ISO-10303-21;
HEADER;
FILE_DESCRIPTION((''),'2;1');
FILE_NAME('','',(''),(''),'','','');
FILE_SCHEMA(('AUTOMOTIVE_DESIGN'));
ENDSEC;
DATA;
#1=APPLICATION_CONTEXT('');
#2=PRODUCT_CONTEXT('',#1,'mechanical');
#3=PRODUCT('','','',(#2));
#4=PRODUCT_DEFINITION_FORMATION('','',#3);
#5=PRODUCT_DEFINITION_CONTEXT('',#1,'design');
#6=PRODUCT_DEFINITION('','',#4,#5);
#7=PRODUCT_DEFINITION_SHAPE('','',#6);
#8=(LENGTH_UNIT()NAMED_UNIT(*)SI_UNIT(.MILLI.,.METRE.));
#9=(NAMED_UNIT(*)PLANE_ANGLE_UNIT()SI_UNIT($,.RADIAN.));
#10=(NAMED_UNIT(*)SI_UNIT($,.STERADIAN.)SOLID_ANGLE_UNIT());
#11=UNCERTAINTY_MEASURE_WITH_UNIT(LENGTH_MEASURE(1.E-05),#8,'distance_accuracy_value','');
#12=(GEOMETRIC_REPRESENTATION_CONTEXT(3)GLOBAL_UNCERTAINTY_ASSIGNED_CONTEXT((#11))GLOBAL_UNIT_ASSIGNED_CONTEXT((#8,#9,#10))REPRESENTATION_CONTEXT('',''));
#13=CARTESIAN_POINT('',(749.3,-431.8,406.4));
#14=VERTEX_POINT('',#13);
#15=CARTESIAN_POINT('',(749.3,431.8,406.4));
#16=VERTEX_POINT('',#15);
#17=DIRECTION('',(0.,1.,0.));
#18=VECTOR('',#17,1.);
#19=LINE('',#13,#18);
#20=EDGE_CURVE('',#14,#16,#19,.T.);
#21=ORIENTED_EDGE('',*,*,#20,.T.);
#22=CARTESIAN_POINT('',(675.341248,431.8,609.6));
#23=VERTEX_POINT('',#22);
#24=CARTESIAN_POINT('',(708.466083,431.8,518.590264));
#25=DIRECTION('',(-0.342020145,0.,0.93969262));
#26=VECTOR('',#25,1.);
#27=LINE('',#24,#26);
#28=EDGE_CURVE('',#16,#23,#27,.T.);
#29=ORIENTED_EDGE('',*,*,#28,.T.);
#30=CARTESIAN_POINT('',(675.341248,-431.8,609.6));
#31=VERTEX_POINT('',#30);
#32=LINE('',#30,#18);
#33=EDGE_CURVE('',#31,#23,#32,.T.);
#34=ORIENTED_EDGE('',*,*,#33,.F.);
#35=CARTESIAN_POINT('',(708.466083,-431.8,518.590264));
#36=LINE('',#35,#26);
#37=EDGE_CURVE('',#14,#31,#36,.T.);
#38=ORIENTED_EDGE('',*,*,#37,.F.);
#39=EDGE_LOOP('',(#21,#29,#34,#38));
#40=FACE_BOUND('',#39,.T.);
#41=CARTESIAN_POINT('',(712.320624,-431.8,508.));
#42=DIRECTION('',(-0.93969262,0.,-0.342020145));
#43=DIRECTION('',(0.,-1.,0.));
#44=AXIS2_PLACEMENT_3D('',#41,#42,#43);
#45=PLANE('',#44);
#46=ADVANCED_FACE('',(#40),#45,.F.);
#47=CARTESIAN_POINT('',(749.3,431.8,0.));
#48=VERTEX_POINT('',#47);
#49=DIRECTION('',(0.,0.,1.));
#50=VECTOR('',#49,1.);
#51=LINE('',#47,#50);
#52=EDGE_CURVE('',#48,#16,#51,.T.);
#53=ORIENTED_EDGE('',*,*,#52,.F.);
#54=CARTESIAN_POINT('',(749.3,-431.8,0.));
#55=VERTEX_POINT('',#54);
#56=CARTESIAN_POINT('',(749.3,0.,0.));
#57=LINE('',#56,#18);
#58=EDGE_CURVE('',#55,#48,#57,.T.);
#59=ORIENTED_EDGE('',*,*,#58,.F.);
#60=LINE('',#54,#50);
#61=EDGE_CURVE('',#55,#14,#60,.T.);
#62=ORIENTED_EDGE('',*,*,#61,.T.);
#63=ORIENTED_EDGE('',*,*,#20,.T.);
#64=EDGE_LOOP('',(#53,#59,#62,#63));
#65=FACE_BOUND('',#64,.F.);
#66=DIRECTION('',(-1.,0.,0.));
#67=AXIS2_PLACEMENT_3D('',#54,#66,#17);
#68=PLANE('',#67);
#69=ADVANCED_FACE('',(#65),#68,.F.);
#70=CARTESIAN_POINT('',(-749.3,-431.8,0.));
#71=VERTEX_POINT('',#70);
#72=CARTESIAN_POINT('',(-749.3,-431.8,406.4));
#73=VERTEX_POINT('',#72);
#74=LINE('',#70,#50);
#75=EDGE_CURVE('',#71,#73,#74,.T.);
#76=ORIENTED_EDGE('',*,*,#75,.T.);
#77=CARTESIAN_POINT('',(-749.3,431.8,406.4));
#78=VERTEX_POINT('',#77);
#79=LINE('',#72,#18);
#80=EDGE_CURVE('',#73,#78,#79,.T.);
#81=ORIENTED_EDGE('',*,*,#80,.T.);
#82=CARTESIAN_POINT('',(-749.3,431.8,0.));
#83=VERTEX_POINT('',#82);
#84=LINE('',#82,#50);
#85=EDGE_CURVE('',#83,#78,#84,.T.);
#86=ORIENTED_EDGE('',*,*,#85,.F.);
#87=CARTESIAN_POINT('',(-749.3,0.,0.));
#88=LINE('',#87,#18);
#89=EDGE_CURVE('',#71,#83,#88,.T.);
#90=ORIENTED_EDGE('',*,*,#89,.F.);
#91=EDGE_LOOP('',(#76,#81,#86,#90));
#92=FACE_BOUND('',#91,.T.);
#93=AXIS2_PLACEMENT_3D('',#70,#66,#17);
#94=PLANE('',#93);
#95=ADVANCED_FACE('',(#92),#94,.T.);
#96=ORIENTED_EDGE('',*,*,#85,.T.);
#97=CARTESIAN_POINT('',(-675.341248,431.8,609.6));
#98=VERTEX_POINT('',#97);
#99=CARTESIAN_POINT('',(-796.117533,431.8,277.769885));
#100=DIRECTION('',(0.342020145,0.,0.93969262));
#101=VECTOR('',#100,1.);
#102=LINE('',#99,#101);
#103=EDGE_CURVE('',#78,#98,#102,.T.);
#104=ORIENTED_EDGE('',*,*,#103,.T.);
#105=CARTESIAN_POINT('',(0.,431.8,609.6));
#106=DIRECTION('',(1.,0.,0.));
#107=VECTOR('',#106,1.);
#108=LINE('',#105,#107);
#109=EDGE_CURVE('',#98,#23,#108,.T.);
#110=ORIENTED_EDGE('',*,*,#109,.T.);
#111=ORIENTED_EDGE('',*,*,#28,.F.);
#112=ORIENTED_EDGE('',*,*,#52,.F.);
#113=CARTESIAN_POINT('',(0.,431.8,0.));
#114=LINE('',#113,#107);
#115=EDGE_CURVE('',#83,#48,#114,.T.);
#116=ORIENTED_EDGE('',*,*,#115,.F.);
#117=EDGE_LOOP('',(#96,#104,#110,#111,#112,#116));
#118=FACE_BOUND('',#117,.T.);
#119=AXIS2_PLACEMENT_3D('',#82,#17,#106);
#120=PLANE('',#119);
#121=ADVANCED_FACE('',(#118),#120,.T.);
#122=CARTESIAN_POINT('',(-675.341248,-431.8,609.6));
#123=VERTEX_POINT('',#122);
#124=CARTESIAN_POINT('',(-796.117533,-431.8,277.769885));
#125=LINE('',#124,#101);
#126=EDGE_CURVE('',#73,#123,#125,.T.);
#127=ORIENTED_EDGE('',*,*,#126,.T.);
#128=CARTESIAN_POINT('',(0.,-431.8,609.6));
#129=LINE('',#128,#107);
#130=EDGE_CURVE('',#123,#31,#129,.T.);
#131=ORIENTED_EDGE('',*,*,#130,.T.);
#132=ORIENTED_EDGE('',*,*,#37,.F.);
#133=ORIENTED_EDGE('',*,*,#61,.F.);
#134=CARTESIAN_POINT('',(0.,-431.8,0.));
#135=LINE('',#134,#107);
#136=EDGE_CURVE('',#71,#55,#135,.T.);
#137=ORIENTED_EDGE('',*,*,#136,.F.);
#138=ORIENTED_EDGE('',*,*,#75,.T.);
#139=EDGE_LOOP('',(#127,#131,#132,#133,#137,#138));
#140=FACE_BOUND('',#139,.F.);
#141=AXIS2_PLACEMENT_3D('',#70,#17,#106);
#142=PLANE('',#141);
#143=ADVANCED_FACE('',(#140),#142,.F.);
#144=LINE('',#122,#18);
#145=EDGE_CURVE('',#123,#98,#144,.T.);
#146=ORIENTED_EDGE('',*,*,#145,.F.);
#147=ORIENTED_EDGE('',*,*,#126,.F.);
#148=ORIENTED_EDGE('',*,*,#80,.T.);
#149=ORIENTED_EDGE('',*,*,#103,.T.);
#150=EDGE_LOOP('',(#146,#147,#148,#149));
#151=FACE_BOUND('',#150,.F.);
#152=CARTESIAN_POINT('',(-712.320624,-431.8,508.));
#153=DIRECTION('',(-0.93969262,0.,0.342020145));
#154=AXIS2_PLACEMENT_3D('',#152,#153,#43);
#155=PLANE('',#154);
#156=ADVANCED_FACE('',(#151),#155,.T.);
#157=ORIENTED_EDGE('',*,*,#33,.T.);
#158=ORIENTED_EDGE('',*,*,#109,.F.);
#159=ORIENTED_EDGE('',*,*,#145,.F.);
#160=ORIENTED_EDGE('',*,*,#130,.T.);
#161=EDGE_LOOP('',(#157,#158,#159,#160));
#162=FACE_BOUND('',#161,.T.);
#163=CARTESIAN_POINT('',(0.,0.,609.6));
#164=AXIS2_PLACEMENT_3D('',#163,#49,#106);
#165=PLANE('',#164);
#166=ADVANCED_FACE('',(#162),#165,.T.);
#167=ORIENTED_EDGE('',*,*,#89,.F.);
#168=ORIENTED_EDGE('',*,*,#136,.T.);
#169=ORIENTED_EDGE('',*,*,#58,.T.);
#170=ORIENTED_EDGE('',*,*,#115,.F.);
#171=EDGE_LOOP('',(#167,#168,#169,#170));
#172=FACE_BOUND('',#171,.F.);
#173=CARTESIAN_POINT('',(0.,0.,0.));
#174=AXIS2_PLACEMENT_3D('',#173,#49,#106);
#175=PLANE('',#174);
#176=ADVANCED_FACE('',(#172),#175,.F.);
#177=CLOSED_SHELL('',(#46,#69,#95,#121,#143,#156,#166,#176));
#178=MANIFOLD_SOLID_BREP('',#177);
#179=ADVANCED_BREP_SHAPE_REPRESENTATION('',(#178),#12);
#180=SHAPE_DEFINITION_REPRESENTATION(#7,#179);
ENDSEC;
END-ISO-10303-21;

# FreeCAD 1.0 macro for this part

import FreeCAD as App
import Part
import Sketcher

V = App.Vector
Q = App.Units.Quantity


def edges_at(feature, points):
    """Names of the edges that pass closest to the given points."""
    edges = feature.Shape.Edges
    near = lambda p: min(range(len(edges)), key=lambda i: edges[i].distToShape(Part.Vertex(*p))[0])
    return sorted({f"Edge{near(p) + 1}" for p in points})


def add_polygon(sketch, points):
    """Adds a closed chain of lines whose ends are joined by coincident constraints."""
    first, n = sketch.GeometryCount, len(points)
    for a, b in zip(points, points[1:] + points[:1]):
        sketch.addGeometry(Part.LineSegment(App.Vector(*a, 0), App.Vector(*b, 0)), False)
    for i in range(n):
        sketch.addConstraint(Sketcher.Constraint("Coincident", first + i, 2, first + (i + 1) % n, 1))

doc = App.newDocument("Part")
body = doc.addObject("PartDesign::Body", "Body")

sketch1 = body.newObject("Sketcher::SketchObject", "Sketch")
sketch1.AttachmentSupport = (doc.getObject("XY_Plane"), [""])
sketch1.MapMode = "FlatFace"
add_polygon(sketch1, [(-749, 432), (-749, -432), (749, -432), (749, 432)])
sketch1.addConstraint([
    Sketcher.Constraint("Vertical", 0),
    Sketcher.Constraint("Horizontal", 1),
    Sketcher.Constraint("Vertical", 2),
    Sketcher.Constraint("Horizontal", 3),
    Sketcher.Constraint("Symmetric", 0, 2, 2, 2, -1, 1),
    Sketcher.Constraint("DistanceX", 1, 1, 1, 2, Q("59 in")),
    Sketcher.Constraint("DistanceY", 0, 2, 0, 1, Q("34 in")),
])
pad1 = body.newObject("PartDesign::Pad", "Pad")
pad1.Profile = sketch1
pad1.Length = Q("24 in")
doc.recompute()

chamfer = body.newObject("PartDesign::Chamfer", "Chamfer")
chamfer.Base = (pad1, edges_at(pad1, [(-749.3, 0, 609.6), (749.3, 0, 609.6)]))
chamfer.ChamferType = "Two distances"
chamfer.Size = Q("8 in")
chamfer.Size2 = 73.958752

doc.recompute()
